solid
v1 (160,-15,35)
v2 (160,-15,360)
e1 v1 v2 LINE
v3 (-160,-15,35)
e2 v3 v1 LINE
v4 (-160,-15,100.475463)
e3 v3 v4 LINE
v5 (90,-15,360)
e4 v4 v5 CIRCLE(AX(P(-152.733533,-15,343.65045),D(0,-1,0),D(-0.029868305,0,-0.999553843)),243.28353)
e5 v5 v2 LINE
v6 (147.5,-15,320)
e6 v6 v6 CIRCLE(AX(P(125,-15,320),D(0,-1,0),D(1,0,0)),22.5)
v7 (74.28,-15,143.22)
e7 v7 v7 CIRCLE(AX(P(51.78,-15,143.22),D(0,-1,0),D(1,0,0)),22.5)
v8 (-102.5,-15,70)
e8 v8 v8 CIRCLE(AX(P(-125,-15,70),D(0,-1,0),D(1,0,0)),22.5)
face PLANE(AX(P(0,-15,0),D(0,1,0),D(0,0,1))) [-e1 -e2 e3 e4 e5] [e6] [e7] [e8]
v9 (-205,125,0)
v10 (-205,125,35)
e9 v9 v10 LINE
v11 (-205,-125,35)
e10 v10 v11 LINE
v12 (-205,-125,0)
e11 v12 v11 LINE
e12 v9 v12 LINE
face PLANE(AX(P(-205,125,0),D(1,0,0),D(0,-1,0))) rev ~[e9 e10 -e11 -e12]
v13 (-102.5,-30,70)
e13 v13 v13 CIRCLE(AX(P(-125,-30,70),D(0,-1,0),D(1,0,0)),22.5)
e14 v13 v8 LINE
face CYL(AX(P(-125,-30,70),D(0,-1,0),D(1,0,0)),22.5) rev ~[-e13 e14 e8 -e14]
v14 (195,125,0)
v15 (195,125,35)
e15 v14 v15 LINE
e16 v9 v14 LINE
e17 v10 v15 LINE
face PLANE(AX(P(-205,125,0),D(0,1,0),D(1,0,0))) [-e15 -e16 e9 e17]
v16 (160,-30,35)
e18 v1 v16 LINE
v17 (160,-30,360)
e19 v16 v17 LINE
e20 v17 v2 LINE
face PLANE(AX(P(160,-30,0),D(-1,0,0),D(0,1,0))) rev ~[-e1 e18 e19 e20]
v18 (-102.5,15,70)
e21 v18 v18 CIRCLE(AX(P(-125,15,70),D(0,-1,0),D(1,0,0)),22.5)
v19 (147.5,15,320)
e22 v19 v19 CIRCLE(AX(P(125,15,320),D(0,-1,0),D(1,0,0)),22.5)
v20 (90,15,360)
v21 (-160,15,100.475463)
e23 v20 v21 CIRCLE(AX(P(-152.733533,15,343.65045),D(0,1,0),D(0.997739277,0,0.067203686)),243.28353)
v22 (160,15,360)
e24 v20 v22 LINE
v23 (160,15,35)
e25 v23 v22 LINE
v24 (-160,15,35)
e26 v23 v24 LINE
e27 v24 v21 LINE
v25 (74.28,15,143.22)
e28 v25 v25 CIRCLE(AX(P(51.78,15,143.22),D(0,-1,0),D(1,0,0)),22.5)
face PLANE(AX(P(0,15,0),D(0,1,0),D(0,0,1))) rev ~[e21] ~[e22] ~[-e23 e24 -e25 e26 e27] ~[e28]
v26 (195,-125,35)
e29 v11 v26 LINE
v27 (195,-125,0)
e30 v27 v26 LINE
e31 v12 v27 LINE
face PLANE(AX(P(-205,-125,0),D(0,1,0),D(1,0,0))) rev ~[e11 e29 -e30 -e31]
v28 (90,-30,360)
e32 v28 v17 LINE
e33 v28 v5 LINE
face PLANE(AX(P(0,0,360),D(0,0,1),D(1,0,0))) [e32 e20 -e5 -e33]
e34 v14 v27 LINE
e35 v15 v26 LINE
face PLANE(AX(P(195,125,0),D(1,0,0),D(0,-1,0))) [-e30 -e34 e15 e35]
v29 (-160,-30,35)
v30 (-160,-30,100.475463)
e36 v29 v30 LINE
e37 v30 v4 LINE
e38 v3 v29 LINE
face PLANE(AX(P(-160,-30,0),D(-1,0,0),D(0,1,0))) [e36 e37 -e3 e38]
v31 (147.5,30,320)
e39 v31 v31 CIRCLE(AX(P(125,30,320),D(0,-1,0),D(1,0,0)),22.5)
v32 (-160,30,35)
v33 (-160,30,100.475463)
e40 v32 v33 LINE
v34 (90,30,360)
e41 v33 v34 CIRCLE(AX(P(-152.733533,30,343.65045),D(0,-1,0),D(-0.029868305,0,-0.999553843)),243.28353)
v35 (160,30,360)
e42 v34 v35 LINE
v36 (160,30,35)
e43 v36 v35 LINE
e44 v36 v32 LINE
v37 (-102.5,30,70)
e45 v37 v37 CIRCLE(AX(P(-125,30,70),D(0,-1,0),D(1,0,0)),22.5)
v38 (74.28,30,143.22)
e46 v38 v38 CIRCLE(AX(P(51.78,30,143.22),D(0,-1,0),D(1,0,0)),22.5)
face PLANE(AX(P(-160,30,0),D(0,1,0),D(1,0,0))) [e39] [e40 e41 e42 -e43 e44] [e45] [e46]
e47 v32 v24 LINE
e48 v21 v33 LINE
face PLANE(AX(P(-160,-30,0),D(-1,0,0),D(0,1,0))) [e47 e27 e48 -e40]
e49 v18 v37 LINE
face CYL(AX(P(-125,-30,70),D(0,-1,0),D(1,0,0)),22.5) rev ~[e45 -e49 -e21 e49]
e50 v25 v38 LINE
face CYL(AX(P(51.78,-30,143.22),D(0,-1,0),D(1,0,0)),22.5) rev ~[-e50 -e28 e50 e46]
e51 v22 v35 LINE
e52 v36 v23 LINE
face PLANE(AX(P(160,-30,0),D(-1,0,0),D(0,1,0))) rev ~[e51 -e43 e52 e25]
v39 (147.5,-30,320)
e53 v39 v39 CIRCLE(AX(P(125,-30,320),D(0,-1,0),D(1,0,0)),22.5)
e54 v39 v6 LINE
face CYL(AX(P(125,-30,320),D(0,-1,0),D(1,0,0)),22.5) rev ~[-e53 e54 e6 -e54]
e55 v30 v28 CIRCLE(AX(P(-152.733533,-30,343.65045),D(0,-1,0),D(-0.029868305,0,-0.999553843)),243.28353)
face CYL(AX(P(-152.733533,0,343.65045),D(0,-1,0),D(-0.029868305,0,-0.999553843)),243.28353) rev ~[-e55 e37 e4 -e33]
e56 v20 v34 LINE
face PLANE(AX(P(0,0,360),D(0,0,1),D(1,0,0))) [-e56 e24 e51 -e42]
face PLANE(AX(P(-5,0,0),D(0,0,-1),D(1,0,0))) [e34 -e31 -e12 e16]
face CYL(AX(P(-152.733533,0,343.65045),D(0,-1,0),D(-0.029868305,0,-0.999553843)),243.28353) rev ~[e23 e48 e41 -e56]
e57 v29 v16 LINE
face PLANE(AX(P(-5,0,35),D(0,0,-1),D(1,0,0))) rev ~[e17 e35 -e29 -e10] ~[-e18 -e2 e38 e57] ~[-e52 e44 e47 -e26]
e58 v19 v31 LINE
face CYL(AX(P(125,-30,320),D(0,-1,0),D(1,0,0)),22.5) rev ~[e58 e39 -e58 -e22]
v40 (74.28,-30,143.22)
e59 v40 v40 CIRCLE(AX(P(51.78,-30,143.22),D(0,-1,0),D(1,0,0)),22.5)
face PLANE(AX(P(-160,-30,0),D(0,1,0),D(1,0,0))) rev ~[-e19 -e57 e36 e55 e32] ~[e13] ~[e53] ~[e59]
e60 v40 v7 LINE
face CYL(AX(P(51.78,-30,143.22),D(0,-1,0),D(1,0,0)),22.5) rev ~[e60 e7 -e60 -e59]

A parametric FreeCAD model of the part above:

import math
import FreeCAD as App
import Part
import Sketcher

V = App.Vector
Q = App.Units.Quantity

doc = App.newDocument("Part")
params = doc.addObject("Spreadsheet::Sheet", "Params")
for row, (alias, value) in enumerate([
    ("sketch1_width", "320 mm"),
    ("sketch1_height", "60 mm"),
    ("pad1_length", "360 mm"),
    ("sketch2_diameter", "45 mm"),
    ("sketch3_width", "250 mm"),
    ("sketch4_width", "30 mm"),
    ("sketch4_height", "360 mm"),
    ("sketch5_width", "400 mm"),
    ("sketch5_width2", "320 mm"),
    ("sketch5_height", "250 mm"),
    ("sketch5_height2", "15 mm"),
    ("pad2_length", "35 mm"),
], start=1):
    params.set(f"A{row}", alias)
    params.set(f"B{row}", "=" + value)
    params.setAlias(f"B{row}", alias)

body = doc.addObject("PartDesign::Body", "Body")
body.AllowCompound = True

# Sketch on XY plane
sketch1 = doc.addObject("Sketcher::SketchObject", "Sketch")
body.addObject(sketch1)
sketch1.AttachmentSupport = (doc.XY_Plane, [""])
sketch1.MapMode = "FlatFace"
sketch1.addGeometry([
    Part.LineSegment(V(-160, 30, 0), V(-160, -30, 0)),
    Part.LineSegment(V(-160, -30, 0), V(160, -30, 0)),
    Part.LineSegment(V(160, -30, 0), V(160, 30, 0)),
    Part.LineSegment(V(160, 30, 0), V(-160, 30, 0)),
], False)
sketch1.addConstraint([
    Sketcher.Constraint("Coincident", 0, 2, 1, 1),
    Sketcher.Constraint("Coincident", 1, 2, 2, 1),
    Sketcher.Constraint("Coincident", 2, 2, 3, 1),
    Sketcher.Constraint("Coincident", 3, 2, 0, 1),
    Sketcher.Constraint("Vertical", 0),
    Sketcher.Constraint("Horizontal", 1),
    Sketcher.Constraint("Vertical", 2),
    Sketcher.Constraint("Horizontal", 3),
    Sketcher.Constraint("Symmetric", 0, 2, 2, 2, -1, 1),
    Sketcher.Constraint("DistanceX", 1, 1, 1, 2, Q("320 mm")),
    Sketcher.Constraint("DistanceY", 0, 2, 0, 1, Q("60 mm")),
])
sketch1.setExpression("Constraints[9]", "Params.sketch1_width")
sketch1.setExpression("Constraints[10]", "Params.sketch1_height")
pad1 = doc.addObject("PartDesign::Pad", "Pad")
body.addObject(pad1)
pad1.Profile = sketch1
pad1.setExpression("Length", "Params.pad1_length")

# Sketch on XZ plane
sketch2 = doc.addObject("Sketcher::SketchObject", "Sketch001")
body.addObject(sketch2)
sketch2.AttachmentSupport = (doc.XZ_Plane, [""])
sketch2.MapMode = "FlatFace"
sketch2.AttachmentOffset = App.Placement(V(0, 0, 30), App.Rotation())
sketch2.addGeometry([
    Part.Circle(V(125, 320, 0), V(0, 0, 1), 22),
    Part.Circle(V(-125, 70, 0), V(0, 0, 1), 22),
    Part.Circle(V(52, 143, 0), V(0, 0, 1), 22),
], False)
sketch2.addConstraint([
    Sketcher.Constraint("Equal", 0, 1),
    Sketcher.Constraint("Equal", 1, 2),
    Sketcher.Constraint("Diameter", 0, Q("45 mm")),
    Sketcher.Constraint("DistanceX", -1, 1, 0, 3, Q("125 mm")),
    Sketcher.Constraint("DistanceY", -1, 1, 0, 3, Q("320 mm")),
    Sketcher.Constraint("DistanceX", 1, 3, -1, 1, Q("125 mm")),
    Sketcher.Constraint("DistanceY", -1, 1, 1, 3, Q("70 mm")),
    Sketcher.Constraint("DistanceX", -1, 1, 2, 3, Q("51.78 mm")),
    Sketcher.Constraint("DistanceY", -1, 1, 2, 3, Q("143.22 mm")),
])
sketch2.setExpression("Constraints[2]", "Params.sketch2_diameter")
pocket1 = doc.addObject("PartDesign::Pocket", "Pocket")
body.addObject(pocket1)
pocket1.Profile = sketch2
pocket1.Type = "ThroughAll"

# Sketch on XZ plane
sketch3 = doc.addObject("Sketcher::SketchObject", "Sketch002")
body.addObject(sketch3)
sketch3.AttachmentSupport = (doc.XZ_Plane, [""])
sketch3.MapMode = "FlatFace"
sketch3.addGeometry([
    Part.LineSegment(V(-160, 360, 0), V(-160, 100, 0)),
    Part.ArcOfCircle(Part.Circle(V(-153, 344, 0), V(0, 0, 1), 243), math.radians(-92), math.radians(4)),
    Part.LineSegment(V(90, 360, 0), V(-160, 360, 0)),
], False)
sketch3.addConstraint([
    Sketcher.Constraint("Coincident", 0, 2, 1, 1),
    Sketcher.Constraint("Coincident", 1, 2, 2, 1),
    Sketcher.Constraint("Coincident", 2, 2, 0, 1),
    Sketcher.Constraint("Vertical", 0),
    Sketcher.Constraint("Horizontal", 2),
    Sketcher.Constraint("DistanceX", 2, 2, 2, 1, Q("250 mm")),
    Sketcher.Constraint("DistanceX", 0, 2, -1, 1, Q("160 mm")),
    Sketcher.Constraint("DistanceY", -1, 1, 1, 2, Q("360 mm")),
    Sketcher.Constraint("Radius", 1, Q("243.28353 mm")),
    Sketcher.Constraint("DistanceY", 0, 2, 0, 1, Q("259.524537 mm")),
])
sketch3.setExpression("Constraints[5]", "Params.sketch3_width")
pocket2 = doc.addObject("PartDesign::Pocket", "Pocket001")
body.addObject(pocket2)
pocket2.Profile = sketch3
pocket2.Type = "ThroughAll"
pocket2.Midplane = True

# Sketch on YZ plane
sketch4 = doc.addObject("Sketcher::SketchObject", "Sketch003")
body.addObject(sketch4)
sketch4.AttachmentSupport = (doc.YZ_Plane, [""])
sketch4.MapMode = "FlatFace"
sketch4.addGeometry([
    Part.LineSegment(V(-15, 360, 0), V(-15, 0, 0)),
    Part.LineSegment(V(-15, 0, 0), V(15, 0, 0)),
    Part.LineSegment(V(15, 0, 0), V(15, 360, 0)),
    Part.LineSegment(V(15, 360, 0), V(-15, 360, 0)),
], False)
sketch4.addConstraint([
    Sketcher.Constraint("Coincident", 0, 2, 1, 1),
    Sketcher.Constraint("Coincident", 1, 2, 2, 1),
    Sketcher.Constraint("Coincident", 2, 2, 3, 1),
    Sketcher.Constraint("Coincident", 3, 2, 0, 1),
    Sketcher.Constraint("Vertical", 0),
    Sketcher.Constraint("Horizontal", 1),
    Sketcher.Constraint("Vertical", 2),
    Sketcher.Constraint("Horizontal", 3),
    Sketcher.Constraint("Symmetric", 0, 2, 1, 2, -1, 1),
    Sketcher.Constraint("DistanceX", 1, 1, 1, 2, Q("30 mm")),
    Sketcher.Constraint("DistanceY", 0, 2, 0, 1, Q("360 mm")),
])
sketch4.setExpression("Constraints[9]", "Params.sketch4_width")
sketch4.setExpression("Constraints[10]", "Params.sketch4_height")
pocket3 = doc.addObject("PartDesign::Pocket", "Pocket002")
body.addObject(pocket3)
pocket3.Profile = sketch4
pocket3.Type = "ThroughAll"
pocket3.Midplane = True

# Sketch on XY plane
sketch5 = doc.addObject("Sketcher::SketchObject", "Sketch004")
body.addObject(sketch5)
sketch5.AttachmentSupport = (doc.XY_Plane, [""])
sketch5.MapMode = "FlatFace"
sketch5.addGeometry([
    Part.LineSegment(V(-205, -125, 0), V(-205, 125, 0)),  # 0
    Part.LineSegment(V(-205, 125, 0), V(195, 125, 0)),  # 1
    Part.LineSegment(V(195, 125, 0), V(195, -125, 0)),  # 2
    Part.LineSegment(V(195, -125, 0), V(-205, -125, 0)),  # 3
    Part.LineSegment(V(160, -15, 0), V(-160, -15, 0)),  # 4
    Part.LineSegment(V(-160, -15, 0), V(-160, -30, 0)),  # 5
    Part.LineSegment(V(-160, -30, 0), V(160, -30, 0)),  # 6
    Part.LineSegment(V(160, -30, 0), V(160, -15, 0)),  # 7
], False)
sketch5.addConstraint([
    Sketcher.Constraint("Coincident", 0, 2, 1, 1),
    Sketcher.Constraint("Coincident", 1, 2, 2, 1),
    Sketcher.Constraint("Coincident", 2, 2, 3, 1),
    Sketcher.Constraint("Coincident", 3, 2, 0, 1),
    Sketcher.Constraint("Coincident", 4, 2, 5, 1),
    Sketcher.Constraint("Coincident", 5, 2, 6, 1),
    Sketcher.Constraint("Coincident", 6, 2, 7, 1),
    Sketcher.Constraint("Coincident", 7, 2, 4, 1),
    Sketcher.Constraint("Vertical", 0),
    Sketcher.Constraint("Horizontal", 1),
    Sketcher.Constraint("Vertical", 2),
    Sketcher.Constraint("Horizontal", 3),
    Sketcher.Constraint("Horizontal", 4),
    Sketcher.Constraint("Vertical", 5),
    Sketcher.Constraint("Horizontal", 6),
    Sketcher.Constraint("Vertical", 7),
    Sketcher.Constraint("DistanceX", 1, 1, 1, 2, Q("400 mm")),
    Sketcher.Constraint("DistanceX", 4, 2, 4, 1, Q("320 mm")),
    Sketcher.Constraint("DistanceY", 0, 1, 0, 2, Q("250 mm")),
    Sketcher.Constraint("DistanceY", 5, 2, 5, 1, Q("15 mm")),
    Sketcher.Constraint("DistanceX", 0, 2, -1, 1, Q("205 mm")),
    Sketcher.Constraint("DistanceY", -1, 1, 0, 2, Q("125 mm")),
    Sketcher.Constraint("DistanceX", 4, 2, -1, 1, Q("160 mm")),
    Sketcher.Constraint("DistanceY", 4, 2, -1, 1, Q("15 mm")),
])
sketch5.setExpression("Constraints[16]", "Params.sketch5_width")
sketch5.setExpression("Constraints[17]", "Params.sketch5_width2")
sketch5.setExpression("Constraints[18]", "Params.sketch5_height")
sketch5.setExpression("Constraints[19]", "Params.sketch5_height2")
pad2 = doc.addObject("PartDesign::Pad", "Pad001")
body.addObject(pad2)
pad2.Profile = sketch5
pad2.setExpression("Length", "Params.pad2_length")

doc.recompute()
